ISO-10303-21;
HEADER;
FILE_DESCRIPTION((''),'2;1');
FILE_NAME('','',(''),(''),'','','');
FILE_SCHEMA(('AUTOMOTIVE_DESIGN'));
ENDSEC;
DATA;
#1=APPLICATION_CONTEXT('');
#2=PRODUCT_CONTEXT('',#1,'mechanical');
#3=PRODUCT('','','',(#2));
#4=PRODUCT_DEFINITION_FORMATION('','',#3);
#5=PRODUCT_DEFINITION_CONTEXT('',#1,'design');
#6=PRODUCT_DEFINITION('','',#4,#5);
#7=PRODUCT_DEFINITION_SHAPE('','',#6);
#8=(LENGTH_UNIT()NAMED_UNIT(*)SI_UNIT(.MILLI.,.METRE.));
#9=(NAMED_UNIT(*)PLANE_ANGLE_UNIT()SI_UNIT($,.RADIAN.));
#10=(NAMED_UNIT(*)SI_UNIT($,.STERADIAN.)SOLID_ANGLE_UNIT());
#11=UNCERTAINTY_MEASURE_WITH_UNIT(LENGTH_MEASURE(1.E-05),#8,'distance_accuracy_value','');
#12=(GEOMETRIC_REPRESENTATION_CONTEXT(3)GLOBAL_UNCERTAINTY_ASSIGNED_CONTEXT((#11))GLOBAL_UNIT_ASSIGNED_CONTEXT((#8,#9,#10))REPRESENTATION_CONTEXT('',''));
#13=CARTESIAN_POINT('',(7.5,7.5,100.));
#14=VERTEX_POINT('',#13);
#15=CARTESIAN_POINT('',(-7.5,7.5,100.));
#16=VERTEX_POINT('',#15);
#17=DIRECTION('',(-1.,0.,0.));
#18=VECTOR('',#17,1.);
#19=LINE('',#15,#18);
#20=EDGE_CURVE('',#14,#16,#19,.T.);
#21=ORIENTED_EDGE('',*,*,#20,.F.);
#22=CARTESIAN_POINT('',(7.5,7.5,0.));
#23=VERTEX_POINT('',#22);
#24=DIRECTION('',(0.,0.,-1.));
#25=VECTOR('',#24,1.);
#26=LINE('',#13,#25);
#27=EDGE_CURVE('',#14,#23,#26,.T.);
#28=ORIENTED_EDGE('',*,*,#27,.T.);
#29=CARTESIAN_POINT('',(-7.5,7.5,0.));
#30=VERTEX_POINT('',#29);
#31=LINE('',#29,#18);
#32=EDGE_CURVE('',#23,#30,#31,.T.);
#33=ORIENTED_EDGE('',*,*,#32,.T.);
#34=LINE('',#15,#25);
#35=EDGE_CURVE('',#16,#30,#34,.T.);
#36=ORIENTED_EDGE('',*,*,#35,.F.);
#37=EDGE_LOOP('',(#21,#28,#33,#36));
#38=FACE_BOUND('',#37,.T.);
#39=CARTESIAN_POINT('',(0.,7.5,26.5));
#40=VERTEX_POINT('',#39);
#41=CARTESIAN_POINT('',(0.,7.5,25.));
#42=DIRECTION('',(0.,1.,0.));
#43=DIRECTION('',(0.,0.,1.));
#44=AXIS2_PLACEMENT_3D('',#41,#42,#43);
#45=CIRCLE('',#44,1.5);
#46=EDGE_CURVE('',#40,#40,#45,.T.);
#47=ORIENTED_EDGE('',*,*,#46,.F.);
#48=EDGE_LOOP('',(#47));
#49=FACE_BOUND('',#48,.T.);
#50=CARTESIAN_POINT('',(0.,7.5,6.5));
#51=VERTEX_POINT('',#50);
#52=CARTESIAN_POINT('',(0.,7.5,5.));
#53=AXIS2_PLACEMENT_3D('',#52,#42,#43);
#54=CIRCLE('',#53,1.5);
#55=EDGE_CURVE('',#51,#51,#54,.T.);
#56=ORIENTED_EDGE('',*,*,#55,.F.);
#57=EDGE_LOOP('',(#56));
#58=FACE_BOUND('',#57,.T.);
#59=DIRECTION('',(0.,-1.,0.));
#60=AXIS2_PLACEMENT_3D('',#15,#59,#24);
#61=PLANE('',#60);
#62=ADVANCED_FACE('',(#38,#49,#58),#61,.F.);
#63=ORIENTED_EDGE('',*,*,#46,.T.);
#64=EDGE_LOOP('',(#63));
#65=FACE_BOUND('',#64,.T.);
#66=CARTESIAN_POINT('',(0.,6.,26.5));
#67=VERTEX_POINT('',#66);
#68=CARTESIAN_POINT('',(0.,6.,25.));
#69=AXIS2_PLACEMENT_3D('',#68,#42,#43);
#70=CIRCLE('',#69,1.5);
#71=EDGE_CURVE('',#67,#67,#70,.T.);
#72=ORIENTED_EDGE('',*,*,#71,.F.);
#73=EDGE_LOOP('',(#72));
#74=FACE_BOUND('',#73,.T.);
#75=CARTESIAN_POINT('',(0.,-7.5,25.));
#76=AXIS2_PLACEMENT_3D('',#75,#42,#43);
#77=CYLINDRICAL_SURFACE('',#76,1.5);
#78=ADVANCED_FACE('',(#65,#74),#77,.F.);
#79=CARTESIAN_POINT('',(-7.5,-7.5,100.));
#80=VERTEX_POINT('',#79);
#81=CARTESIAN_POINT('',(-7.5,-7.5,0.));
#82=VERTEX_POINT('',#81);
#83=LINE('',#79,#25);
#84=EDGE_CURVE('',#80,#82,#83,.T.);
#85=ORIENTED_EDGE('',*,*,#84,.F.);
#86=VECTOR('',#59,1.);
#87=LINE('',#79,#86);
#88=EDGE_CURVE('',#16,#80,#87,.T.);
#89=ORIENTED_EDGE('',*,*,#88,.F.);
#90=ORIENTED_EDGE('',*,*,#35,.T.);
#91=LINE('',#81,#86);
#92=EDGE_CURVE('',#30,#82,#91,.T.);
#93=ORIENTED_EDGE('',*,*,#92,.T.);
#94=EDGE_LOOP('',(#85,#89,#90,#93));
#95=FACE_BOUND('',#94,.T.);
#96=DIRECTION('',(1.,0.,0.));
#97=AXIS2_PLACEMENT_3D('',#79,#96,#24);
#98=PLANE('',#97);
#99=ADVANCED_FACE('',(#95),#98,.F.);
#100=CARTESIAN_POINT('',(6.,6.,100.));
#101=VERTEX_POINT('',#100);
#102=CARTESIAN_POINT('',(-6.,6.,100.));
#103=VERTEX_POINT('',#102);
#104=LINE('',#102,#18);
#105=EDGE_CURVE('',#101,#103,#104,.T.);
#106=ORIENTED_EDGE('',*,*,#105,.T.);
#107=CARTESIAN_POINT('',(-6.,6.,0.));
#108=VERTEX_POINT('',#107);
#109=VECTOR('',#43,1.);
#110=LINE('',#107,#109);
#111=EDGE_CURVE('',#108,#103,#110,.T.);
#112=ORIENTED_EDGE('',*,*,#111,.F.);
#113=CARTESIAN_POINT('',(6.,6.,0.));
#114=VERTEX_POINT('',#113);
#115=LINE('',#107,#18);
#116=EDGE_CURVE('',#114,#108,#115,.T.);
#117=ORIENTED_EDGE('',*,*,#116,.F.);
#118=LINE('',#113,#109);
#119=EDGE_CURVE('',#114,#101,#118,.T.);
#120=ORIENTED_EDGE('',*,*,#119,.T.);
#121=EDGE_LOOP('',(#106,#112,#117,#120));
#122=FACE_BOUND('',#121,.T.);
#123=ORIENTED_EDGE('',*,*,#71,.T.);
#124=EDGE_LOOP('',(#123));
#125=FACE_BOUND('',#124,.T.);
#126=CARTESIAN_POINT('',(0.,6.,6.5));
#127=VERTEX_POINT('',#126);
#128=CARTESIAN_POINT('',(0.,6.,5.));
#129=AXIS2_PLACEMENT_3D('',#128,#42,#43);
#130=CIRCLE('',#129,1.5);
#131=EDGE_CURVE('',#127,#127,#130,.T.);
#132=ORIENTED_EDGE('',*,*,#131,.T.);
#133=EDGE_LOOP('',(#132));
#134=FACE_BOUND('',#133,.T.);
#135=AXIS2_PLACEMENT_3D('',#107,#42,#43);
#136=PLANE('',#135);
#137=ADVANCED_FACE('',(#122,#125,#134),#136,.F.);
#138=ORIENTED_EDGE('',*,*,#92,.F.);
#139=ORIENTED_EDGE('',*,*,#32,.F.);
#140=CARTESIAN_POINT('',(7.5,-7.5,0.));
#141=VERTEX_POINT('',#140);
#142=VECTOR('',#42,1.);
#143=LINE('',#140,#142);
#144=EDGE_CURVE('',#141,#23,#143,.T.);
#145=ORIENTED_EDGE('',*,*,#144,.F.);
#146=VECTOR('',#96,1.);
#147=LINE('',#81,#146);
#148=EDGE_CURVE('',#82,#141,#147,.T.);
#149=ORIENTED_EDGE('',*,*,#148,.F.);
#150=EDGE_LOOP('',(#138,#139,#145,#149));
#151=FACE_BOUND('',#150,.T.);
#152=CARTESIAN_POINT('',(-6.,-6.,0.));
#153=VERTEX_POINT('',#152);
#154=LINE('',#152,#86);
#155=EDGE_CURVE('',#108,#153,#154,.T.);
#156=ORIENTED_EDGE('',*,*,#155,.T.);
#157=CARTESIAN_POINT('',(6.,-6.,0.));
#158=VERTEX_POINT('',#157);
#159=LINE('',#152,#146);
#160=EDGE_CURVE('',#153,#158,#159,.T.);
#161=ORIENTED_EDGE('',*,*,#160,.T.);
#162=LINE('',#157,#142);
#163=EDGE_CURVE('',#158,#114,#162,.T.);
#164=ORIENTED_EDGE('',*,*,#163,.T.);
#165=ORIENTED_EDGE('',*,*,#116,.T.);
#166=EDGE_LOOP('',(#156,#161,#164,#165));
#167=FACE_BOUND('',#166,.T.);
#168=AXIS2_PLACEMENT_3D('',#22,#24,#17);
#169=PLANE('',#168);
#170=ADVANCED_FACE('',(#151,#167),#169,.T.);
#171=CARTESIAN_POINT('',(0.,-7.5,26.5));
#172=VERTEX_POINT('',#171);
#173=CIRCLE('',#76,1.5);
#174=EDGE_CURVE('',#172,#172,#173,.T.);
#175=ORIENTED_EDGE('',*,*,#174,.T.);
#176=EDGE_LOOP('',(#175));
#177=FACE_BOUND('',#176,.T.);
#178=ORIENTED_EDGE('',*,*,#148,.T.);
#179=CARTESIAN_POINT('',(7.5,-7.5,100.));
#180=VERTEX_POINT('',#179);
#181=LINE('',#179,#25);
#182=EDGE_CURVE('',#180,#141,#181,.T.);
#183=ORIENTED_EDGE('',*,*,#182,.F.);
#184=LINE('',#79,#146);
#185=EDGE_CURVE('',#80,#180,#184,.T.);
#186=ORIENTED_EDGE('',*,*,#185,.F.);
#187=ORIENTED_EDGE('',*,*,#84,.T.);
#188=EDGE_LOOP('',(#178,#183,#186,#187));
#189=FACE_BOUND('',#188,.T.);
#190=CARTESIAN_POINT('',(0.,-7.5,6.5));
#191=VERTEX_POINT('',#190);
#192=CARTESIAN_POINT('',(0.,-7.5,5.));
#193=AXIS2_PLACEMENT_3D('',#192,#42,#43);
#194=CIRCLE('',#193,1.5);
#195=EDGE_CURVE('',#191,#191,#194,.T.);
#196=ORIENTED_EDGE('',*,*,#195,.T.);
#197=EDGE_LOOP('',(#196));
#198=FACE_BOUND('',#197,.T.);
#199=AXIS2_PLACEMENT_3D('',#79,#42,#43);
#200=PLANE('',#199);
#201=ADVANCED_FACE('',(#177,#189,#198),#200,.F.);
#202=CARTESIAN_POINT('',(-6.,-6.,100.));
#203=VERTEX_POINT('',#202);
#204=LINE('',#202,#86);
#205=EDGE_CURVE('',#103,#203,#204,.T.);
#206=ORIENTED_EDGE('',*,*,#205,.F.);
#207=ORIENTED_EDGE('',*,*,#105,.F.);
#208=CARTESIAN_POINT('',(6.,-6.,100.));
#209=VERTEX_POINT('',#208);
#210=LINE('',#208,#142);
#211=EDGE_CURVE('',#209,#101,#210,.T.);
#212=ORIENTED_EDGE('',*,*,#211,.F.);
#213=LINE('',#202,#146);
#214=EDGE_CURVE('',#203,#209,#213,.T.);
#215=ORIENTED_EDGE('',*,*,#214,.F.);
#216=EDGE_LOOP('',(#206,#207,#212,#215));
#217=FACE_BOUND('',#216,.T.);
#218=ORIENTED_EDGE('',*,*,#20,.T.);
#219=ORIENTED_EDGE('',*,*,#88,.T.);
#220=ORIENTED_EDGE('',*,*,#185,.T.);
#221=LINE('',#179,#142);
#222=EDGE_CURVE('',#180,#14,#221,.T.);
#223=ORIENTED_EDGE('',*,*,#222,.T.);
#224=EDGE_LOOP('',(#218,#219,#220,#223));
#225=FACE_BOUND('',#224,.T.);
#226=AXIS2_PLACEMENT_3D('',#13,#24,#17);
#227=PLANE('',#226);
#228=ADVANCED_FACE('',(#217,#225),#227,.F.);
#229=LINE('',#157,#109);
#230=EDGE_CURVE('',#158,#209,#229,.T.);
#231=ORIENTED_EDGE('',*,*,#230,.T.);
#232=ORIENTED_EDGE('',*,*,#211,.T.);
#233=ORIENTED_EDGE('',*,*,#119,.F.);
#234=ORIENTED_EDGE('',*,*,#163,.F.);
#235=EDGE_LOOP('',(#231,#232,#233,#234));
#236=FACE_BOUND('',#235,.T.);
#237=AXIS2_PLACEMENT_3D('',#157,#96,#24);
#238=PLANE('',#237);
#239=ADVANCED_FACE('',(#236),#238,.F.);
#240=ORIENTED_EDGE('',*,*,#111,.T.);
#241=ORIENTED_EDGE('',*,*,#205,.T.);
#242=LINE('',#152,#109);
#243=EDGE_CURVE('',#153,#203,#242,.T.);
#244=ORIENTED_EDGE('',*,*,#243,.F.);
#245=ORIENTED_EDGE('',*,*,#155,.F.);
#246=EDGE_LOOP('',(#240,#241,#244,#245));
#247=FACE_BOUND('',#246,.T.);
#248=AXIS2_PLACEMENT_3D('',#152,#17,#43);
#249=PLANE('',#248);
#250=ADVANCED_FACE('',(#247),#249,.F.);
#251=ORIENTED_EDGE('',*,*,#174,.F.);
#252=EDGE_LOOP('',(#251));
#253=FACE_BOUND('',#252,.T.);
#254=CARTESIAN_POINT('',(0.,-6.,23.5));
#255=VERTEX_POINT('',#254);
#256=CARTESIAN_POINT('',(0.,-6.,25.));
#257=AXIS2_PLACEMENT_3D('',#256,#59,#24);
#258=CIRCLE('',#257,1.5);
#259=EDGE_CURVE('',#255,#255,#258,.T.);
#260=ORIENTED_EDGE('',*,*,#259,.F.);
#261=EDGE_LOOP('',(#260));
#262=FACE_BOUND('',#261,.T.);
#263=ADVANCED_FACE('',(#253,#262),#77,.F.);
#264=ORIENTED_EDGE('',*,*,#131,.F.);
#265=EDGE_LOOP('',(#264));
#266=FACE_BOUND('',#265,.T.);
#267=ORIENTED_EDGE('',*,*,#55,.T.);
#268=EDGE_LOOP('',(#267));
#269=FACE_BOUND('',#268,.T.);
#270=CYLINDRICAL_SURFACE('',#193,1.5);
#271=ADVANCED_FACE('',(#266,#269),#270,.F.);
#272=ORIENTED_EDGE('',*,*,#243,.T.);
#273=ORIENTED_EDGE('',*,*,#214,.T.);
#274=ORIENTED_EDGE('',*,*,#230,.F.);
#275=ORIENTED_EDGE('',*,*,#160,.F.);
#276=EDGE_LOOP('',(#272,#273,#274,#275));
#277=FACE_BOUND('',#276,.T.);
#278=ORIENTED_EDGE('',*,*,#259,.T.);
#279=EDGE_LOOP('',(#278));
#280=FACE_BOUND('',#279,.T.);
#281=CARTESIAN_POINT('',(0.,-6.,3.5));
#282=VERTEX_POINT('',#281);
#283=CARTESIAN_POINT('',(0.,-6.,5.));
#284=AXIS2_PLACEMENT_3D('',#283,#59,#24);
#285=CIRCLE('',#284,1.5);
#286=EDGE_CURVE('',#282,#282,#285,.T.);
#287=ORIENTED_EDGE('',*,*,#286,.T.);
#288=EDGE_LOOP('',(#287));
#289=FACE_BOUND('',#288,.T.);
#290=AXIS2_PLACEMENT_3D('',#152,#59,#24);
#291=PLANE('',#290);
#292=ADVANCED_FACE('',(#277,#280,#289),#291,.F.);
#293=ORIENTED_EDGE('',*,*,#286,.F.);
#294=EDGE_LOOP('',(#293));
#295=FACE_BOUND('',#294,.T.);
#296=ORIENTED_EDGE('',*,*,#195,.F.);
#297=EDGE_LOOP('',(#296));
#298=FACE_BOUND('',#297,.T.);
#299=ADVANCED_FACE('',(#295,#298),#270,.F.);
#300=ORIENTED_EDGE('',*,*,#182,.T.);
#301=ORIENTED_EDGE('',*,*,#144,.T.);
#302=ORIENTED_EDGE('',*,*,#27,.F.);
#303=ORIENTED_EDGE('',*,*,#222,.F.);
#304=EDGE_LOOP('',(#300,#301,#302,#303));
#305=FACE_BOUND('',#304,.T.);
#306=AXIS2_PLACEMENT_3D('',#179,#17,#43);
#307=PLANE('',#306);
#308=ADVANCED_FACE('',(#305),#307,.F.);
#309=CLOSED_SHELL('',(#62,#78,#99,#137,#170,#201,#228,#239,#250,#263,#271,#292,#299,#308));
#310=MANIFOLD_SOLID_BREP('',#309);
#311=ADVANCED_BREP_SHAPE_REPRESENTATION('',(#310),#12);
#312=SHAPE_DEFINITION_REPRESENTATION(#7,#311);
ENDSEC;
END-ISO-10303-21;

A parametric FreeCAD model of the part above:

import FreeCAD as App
import Part
import Sketcher
Q = App.Units.Quantity

doc = App.newDocument("Part")
body = doc.addObject("PartDesign::Body", "Body")

sketch1 = body.newObject("Sketcher::SketchObject", "Sketch")
sketch1.AttachmentSupport = (doc.getObject("XY_Plane"), [""])
sketch1.MapMode = "FlatFace"
sketch1.addGeometry([
    Part.LineSegment(App.Vector(-8, 8, 0), App.Vector(-8, -8, 0)),
    Part.LineSegment(App.Vector(-8, -8, 0), App.Vector(8, -8, 0)),
    Part.LineSegment(App.Vector(8, -8, 0), App.Vector(8, 8, 0)),
    Part.LineSegment(App.Vector(8, 8, 0), App.Vector(-8, 8, 0)),
], False)
sketch1.addConstraint([
    Sketcher.Constraint("Coincident", 0, 2, 1, 1),
    Sketcher.Constraint("Coincident", 1, 2, 2, 1),
    Sketcher.Constraint("Coincident", 2, 2, 3, 1),
    Sketcher.Constraint("Coincident", 3, 2, 0, 1),
    Sketcher.Constraint("Vertical", 0),
    Sketcher.Constraint("Horizontal", 1),
    Sketcher.Constraint("Vertical", 2),
    Sketcher.Constraint("Horizontal", 3),
    Sketcher.Constraint("Symmetric", 0, 2, 2, 2, -1, 1),
    Sketcher.Constraint("Equal", 3, 0),
    Sketcher.Constraint("DistanceX", 1, 1, 1, 2, Q("15 mm")),
])
pad1 = body.newObject("PartDesign::Pad", "Pad")
pad1.Profile = sketch1
pad1.Length = 100

sketch2 = body.newObject("Sketcher::SketchObject", "Sketch001")
sketch2.AttachmentSupport = (doc.getObject("XY_Plane"), [""])
sketch2.MapMode = "FlatFace"
sketch2.AttachmentOffset = App.Placement(App.Vector(0, 0, 100), App.Rotation())
sketch2.addGeometry([
    Part.LineSegment(App.Vector(-6, 6, 0), App.Vector(-6, -6, 0)),
    Part.LineSegment(App.Vector(-6, -6, 0), App.Vector(6, -6, 0)),
    Part.LineSegment(App.Vector(6, -6, 0), App.Vector(6, 6, 0)),
    Part.LineSegment(App.Vector(6, 6, 0), App.Vector(-6, 6, 0)),
], False)
sketch2.addConstraint([
    Sketcher.Constraint("Coincident", 0, 2, 1, 1),
    Sketcher.Constraint("Coincident", 1, 2, 2, 1),
    Sketcher.Constraint("Coincident", 2, 2, 3, 1),
    Sketcher.Constraint("Coincident", 3, 2, 0, 1),
    Sketcher.Constraint("Vertical", 0),
    Sketcher.Constraint("Horizontal", 1),
    Sketcher.Constraint("Vertical", 2),
    Sketcher.Constraint("Horizontal", 3),
    Sketcher.Constraint("Symmetric", 0, 2, 2, 2, -1, 1),
    Sketcher.Constraint("Equal", 3, 0),
    Sketcher.Constraint("DistanceX", 1, 1, 1, 2, Q("12 mm")),
])
pocket1 = body.newObject("PartDesign::Pocket", "Pocket")
pocket1.Profile = sketch2
pocket1.Type = "ThroughAll"

sketch3 = body.newObject("Sketcher::SketchObject", "Sketch002")
sketch3.AttachmentSupport = (doc.getObject("XZ_Plane"), [""])
sketch3.MapMode = "FlatFace"
sketch3.AttachmentOffset = App.Placement(App.Vector(0, 0, -7.5), App.Rotation())
sketch3.addGeometry(Part.Circle(App.Vector(0, 5, 0), App.Vector(0, 0, 1), 1.5), False)
sketch3.addConstraint([
    Sketcher.Constraint("PointOnObject", 0, 3, -2),
    Sketcher.Constraint("Diameter", 0, Q("3 mm")),
    Sketcher.Constraint("DistanceY", -1, 1, 0, 3, Q("5 mm")),
])
pocket2 = body.newObject("PartDesign::Pocket", "Pocket001")
pocket2.Profile = sketch3
pocket2.Type = "ThroughAll"
pocket2.Reversed = True
doc.recompute()

linearpattern = body.newObject("PartDesign::LinearPattern", "LinearPattern")
linearpattern.Originals = [pocket2]
linearpattern.Direction = (doc.getObject("Z_Axis"), [""])
linearpattern.Mode = "offset"
linearpattern.Offset = 20
linearpattern.Occurrences = 2
body.Tip = linearpattern

doc.recompute()
